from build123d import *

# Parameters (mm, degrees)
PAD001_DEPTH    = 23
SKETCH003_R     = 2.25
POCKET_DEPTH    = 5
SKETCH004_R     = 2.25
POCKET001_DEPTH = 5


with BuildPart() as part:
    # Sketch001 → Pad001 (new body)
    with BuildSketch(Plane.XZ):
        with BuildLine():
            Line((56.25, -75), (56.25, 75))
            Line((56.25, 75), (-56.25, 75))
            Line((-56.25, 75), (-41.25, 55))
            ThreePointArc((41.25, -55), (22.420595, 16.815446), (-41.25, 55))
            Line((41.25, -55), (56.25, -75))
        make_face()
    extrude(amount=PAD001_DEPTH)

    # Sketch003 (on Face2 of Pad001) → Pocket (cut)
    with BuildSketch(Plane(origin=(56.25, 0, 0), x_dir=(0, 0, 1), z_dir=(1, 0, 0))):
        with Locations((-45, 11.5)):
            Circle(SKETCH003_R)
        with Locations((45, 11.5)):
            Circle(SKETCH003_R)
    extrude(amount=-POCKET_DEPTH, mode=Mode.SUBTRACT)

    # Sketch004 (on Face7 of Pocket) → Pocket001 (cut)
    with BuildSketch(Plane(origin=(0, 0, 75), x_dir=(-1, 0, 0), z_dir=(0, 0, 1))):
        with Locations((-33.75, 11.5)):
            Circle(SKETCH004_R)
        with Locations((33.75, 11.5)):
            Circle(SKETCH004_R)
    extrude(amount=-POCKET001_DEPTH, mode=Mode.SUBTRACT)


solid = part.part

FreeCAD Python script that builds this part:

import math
import FreeCAD as App
import Part
import Sketcher
from FreeCAD import Vector

doc = App.newDocument("Part")
body = doc.addObject("PartDesign::Body", "Body")

sketch1 = doc.addObject("Sketcher::SketchObject", "Sketch")
body.addObject(sketch1)
sketch1.AttachmentSupport = (doc.XZ_Plane, [""])
sketch1.MapMode = "FlatFace"
sketch1.addGeometry([
    Part.LineSegment(Vector(56.25, -75, 0), Vector(56.25, 75, 0)),
    Part.LineSegment(Vector(56.25, 75, 0), Vector(-56.25, 75, 0)),
    Part.LineSegment(Vector(-56.25, 75, 0), Vector(-41.25, 55, 0)),
    Part.ArcOfCircle(Part.Circle(Vector(-56.25, -42.1875, 0), Vector(0, 0, 1), 98.338244), math.radians(-7.486357), math.radians(81.226152)),
    Part.LineSegment(Vector(41.25, -55, 0), Vector(56.25, -75, 0)),
], False)
sketch1.addConstraint([
    Sketcher.Constraint("Coincident", 0, 2, 1, 1),
    Sketcher.Constraint("Coincident", 1, 2, 2, 1),
    Sketcher.Constraint("Coincident", 2, 2, 3, 2),
    Sketcher.Constraint("Coincident", 3, 1, 4, 1),
    Sketcher.Constraint("Coincident", 4, 2, 0, 1),
    Sketcher.Constraint("Vertical", 0),
    Sketcher.Constraint("Horizontal", 1),
    Sketcher.Constraint("Symmetric", 2, 2, 3, 1, -1, 1),
    Sketcher.Constraint("Symmetric", 1, 2, 4, 2, -1, 1),
    Sketcher.Constraint("Vertical", 3, 3, 1, 2),
    Sketcher.Constraint("DistanceY", 0, 1, 0, 2, 150.0),
    Sketcher.Constraint("Distance", 2, 25.0),
    Sketcher.Constraint("DistanceX", 1, 2, 1, 1, 112.5),
    Sketcher.Constraint("DistanceY", -1, 1, 2, 2, 55.0),
])
pad1 = doc.addObject("PartDesign::Pad", "Pad")
body.addObject(pad1)
pad1.Profile = sketch1
pad1.Length = 23

sketch2 = doc.addObject("Sketcher::SketchObject", "Sketch001")
body.addObject(sketch2)
sketch2.AttachmentSupport = (doc.YZ_Plane, [""])
sketch2.MapMode = "FlatFace"
sketch2.AttachmentOffset = App.Placement(Vector(0, 0, 56.25), App.Rotation())
sketch2.addGeometry([
    Part.Circle(Vector(-11.5, -45, 0), Vector(0, 0, 1), 2.25),
    Part.Circle(Vector(-11.5, 45, 0), Vector(0, 0, 1), 2.25),
], False)
sketch2.addConstraint([
    Sketcher.Constraint("Equal", 0, 1),
    Sketcher.Constraint("Symmetric", 0, 3, 1, 3, -1),
    Sketcher.Constraint("Diameter", 0, 4.5),
    Sketcher.Constraint("DistanceY", 0, 3, -1, 1, 45.0),
    Sketcher.Constraint("DistanceX", 0, 3, -1, 1, 11.5),
])
pocket1 = doc.addObject("PartDesign::Pocket", "Pocket")
body.addObject(pocket1)
pocket1.Profile = sketch2
pocket1.Length = 5

sketch3 = doc.addObject("Sketcher::SketchObject", "Sketch002")
body.addObject(sketch3)
sketch3.AttachmentSupport = (doc.XY_Plane, [""])
sketch3.MapMode = "FlatFace"
sketch3.AttachmentOffset = App.Placement(Vector(0, 0, 75), App.Rotation())
sketch3.addGeometry([
    Part.Circle(Vector(33.75, -11.5, 0), Vector(0, 0, 1), 2.25),
    Part.Circle(Vector(-33.75, -11.5, 0), Vector(0, 0, 1), 2.25),
], False)
sketch3.addConstraint([
    Sketcher.Constraint("Equal", 0, 1),
    Sketcher.Constraint("Symmetric", 0, 3, 1, 3, -2),
    Sketcher.Constraint("Diameter", 0, 4.5),
    Sketcher.Constraint("DistanceY", 0, 3, -1, 1, 11.5),
    Sketcher.Constraint("DistanceX", 1, 3, 0, 3, 67.5),
])
pocket2 = doc.addObject("PartDesign::Pocket", "Pocket001")
body.addObject(pocket2)
pocket2.Profile = sketch3
pocket2.Length = 5

doc.recompute()
